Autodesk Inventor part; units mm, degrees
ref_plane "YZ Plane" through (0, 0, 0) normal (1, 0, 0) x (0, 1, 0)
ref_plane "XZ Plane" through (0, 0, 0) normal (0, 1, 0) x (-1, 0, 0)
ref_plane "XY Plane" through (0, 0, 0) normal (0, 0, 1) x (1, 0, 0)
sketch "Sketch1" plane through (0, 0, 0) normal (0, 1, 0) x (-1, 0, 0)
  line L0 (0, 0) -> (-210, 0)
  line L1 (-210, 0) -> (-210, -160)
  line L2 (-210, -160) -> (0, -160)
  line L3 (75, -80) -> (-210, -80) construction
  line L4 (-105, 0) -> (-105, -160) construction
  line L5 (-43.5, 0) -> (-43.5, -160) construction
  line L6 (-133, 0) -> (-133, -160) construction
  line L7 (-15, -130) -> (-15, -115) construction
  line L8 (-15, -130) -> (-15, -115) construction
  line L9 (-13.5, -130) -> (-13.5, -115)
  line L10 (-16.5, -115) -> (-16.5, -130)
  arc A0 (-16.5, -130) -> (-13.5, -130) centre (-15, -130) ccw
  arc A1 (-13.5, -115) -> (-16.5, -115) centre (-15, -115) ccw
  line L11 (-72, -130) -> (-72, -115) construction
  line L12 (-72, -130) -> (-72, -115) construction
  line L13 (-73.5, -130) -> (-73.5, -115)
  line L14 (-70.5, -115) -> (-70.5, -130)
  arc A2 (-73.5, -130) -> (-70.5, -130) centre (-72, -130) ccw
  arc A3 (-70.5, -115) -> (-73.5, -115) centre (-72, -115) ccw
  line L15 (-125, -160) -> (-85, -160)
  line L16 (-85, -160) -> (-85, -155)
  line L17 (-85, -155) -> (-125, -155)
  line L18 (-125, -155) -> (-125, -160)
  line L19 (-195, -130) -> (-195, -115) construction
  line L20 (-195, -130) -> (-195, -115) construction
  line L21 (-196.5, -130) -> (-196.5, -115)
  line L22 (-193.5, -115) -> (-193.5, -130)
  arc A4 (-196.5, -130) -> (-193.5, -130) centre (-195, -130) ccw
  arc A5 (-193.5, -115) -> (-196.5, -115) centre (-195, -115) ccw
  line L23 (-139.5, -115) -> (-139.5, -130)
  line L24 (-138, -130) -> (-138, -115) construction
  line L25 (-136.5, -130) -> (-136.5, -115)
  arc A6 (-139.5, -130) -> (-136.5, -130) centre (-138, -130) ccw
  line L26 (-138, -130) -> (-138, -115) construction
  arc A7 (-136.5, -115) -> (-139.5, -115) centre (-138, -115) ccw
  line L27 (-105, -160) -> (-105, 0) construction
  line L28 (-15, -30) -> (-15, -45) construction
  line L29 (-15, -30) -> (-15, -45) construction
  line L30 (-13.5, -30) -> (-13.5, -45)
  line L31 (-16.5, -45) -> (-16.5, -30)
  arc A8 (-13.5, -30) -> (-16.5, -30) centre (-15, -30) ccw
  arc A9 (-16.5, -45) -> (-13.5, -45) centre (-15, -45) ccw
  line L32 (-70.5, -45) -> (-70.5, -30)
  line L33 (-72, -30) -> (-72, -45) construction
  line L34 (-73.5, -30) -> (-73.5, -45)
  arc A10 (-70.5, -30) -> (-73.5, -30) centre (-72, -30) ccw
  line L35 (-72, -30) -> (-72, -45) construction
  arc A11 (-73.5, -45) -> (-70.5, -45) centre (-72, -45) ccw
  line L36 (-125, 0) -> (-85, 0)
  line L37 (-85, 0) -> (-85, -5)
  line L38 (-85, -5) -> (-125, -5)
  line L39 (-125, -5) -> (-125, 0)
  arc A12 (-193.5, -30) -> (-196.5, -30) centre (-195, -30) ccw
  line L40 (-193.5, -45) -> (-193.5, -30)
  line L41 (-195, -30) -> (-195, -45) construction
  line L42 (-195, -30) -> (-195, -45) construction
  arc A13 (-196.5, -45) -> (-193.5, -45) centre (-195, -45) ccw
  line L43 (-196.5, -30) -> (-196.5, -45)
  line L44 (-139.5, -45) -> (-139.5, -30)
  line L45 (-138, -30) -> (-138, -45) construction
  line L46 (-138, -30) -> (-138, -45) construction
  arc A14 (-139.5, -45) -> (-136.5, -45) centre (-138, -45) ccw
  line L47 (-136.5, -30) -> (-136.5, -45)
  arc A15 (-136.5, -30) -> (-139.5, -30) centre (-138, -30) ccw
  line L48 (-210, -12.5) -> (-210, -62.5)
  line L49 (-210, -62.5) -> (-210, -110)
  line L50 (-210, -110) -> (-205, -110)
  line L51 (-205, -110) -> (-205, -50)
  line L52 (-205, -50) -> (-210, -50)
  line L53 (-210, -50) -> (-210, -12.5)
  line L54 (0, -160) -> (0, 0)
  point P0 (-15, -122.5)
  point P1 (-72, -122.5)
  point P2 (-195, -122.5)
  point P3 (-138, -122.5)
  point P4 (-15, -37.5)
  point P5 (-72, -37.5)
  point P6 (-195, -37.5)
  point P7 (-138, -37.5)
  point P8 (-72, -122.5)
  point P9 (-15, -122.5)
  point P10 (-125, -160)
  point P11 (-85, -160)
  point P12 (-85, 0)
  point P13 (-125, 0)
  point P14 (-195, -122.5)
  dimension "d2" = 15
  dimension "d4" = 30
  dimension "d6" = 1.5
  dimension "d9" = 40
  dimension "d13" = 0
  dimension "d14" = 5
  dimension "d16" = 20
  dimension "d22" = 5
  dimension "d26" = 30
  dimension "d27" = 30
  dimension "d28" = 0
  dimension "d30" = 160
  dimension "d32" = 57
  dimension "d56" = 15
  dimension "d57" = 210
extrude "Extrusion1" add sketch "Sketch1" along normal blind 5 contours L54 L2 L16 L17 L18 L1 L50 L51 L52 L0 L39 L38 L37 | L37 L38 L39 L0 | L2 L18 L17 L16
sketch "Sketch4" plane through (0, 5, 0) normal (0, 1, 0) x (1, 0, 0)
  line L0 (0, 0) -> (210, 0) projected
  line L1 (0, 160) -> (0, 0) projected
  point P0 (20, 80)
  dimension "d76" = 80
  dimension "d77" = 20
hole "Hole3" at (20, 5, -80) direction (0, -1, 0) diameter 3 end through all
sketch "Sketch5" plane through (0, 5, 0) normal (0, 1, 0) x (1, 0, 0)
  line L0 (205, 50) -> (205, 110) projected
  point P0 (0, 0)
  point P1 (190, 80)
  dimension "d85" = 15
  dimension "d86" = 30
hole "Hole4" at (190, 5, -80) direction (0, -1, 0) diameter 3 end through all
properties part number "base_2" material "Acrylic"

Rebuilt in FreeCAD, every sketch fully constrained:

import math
import FreeCAD as App
import Part
import Sketcher
from FreeCAD import Vector
Q = App.Units.Quantity


def add_polygon(sketch, points):
    """Adds a closed chain of lines whose ends are joined by coincident constraints."""
    first, n = sketch.GeometryCount, len(points)
    for a, b in zip(points, points[1:] + points[:1]):
        sketch.addGeometry(Part.LineSegment(App.Vector(*a, 0), App.Vector(*b, 0)), False)
    for i in range(n):
        sketch.addConstraint(Sketcher.Constraint("Coincident", first + i, 2, first + (i + 1) % n, 1))

doc = App.newDocument("Part")
body = doc.addObject("PartDesign::Body", "Body")

sketch1 = body.newObject("Sketcher::SketchObject", "Sketch")
sketch1.AttachmentSupport = (doc.getObject("XZ_Plane"), [""])
sketch1.MapMode = "FlatFace"
add_polygon(sketch1, [(0, -160), (0, 0), (210, 0), (210, -50), (205, -50), (205, -110), (210, -110), (210, -160)])
sketch1.addGeometry(Part.ArcOfCircle(Part.Circle(Vector(195, -130, 0), Vector(0, 0, 1), 1.5), math.radians(180), math.radians(360)), False)
sketch1.addGeometry(Part.LineSegment(Vector(196.5, -130, 0), Vector(196.5, -115, 0)), False)
sketch1.addGeometry(Part.ArcOfCircle(Part.Circle(Vector(195, -115, 0), Vector(0, 0, 1), 1.5), math.radians(0), math.radians(180)), False)
sketch1.addGeometry(Part.LineSegment(Vector(193.5, -115, 0), Vector(193.5, -130, 0)), False)
sketch1.addGeometry(Part.LineSegment(Vector(139.5, -130, 0), Vector(139.5, -115, 0)), False)
sketch1.addGeometry(Part.ArcOfCircle(Part.Circle(Vector(138, -115, 0), Vector(0, 0, 1), 1.5), math.radians(0), math.radians(180)), False)
sketch1.addGeometry(Part.LineSegment(Vector(136.5, -115, 0), Vector(136.5, -130, 0)), False)
sketch1.addGeometry(Part.ArcOfCircle(Part.Circle(Vector(138, -130, 0), Vector(0, 0, 1), 1.5), math.radians(180), math.radians(360)), False)
sketch1.addGeometry(Part.ArcOfCircle(Part.Circle(Vector(72, -130, 0), Vector(0, 0, 1), 1.5), math.radians(180), math.radians(360)), False)
sketch1.addGeometry(Part.LineSegment(Vector(73.5, -130, 0), Vector(73.5, -115, 0)), False)
sketch1.addGeometry(Part.ArcOfCircle(Part.Circle(Vector(72, -115, 0), Vector(0, 0, 1), 1.5), math.radians(0), math.radians(180)), False)
sketch1.addGeometry(Part.LineSegment(Vector(70.5, -115, 0), Vector(70.5, -130, 0)), False)
sketch1.addGeometry(Part.LineSegment(Vector(13.5, -115, 0), Vector(13.5, -130, 0)), False)
sketch1.addGeometry(Part.ArcOfCircle(Part.Circle(Vector(15, -130, 0), Vector(0, 0, 1), 1.5), math.radians(180), math.radians(360)), False)
sketch1.addGeometry(Part.LineSegment(Vector(16.5, -130, 0), Vector(16.5, -115, 0)), False)
sketch1.addGeometry(Part.ArcOfCircle(Part.Circle(Vector(15, -115, 0), Vector(0, 0, 1), 1.5), math.radians(0), math.radians(180)), False)
sketch1.addGeometry(Part.ArcOfCircle(Part.Circle(Vector(195, -30, 0), Vector(0, 0, 1), 1.5), math.radians(0), math.radians(180)), False)
sketch1.addGeometry(Part.LineSegment(Vector(193.5, -30, 0), Vector(193.5, -45, 0)), False)
sketch1.addGeometry(Part.ArcOfCircle(Part.Circle(Vector(195, -45, 0), Vector(0, 0, 1), 1.5), math.radians(180), math.radians(360)), False)
sketch1.addGeometry(Part.LineSegment(Vector(196.5, -45, 0), Vector(196.5, -30, 0)), False)
sketch1.addGeometry(Part.ArcOfCircle(Part.Circle(Vector(138, -45, 0), Vector(0, 0, 1), 1.5), math.radians(180), math.radians(360)), False)
sketch1.addGeometry(Part.LineSegment(Vector(139.5, -45, 0), Vector(139.5, -30, 0)), False)
sketch1.addGeometry(Part.ArcOfCircle(Part.Circle(Vector(138, -30, 0), Vector(0, 0, 1), 1.5), math.radians(0), math.radians(180)), False)
sketch1.addGeometry(Part.LineSegment(Vector(136.5, -30, 0), Vector(136.5, -45, 0)), False)
sketch1.addGeometry(Part.LineSegment(Vector(70.5, -30, 0), Vector(70.5, -45, 0)), False)
sketch1.addGeometry(Part.ArcOfCircle(Part.Circle(Vector(72, -45, 0), Vector(0, 0, 1), 1.5), math.radians(180), math.radians(360)), False)
sketch1.addGeometry(Part.LineSegment(Vector(73.5, -45, 0), Vector(73.5, -30, 0)), False)
sketch1.addGeometry(Part.ArcOfCircle(Part.Circle(Vector(72, -30, 0), Vector(0, 0, 1), 1.5), math.radians(0), math.radians(180)), False)
sketch1.addGeometry(Part.ArcOfCircle(Part.Circle(Vector(15, -30, 0), Vector(0, 0, 1), 1.5), math.radians(0), math.radians(180)), False)
sketch1.addGeometry(Part.LineSegment(Vector(13.5, -30, 0), Vector(13.5, -45, 0)), False)
sketch1.addGeometry(Part.ArcOfCircle(Part.Circle(Vector(15, -45, 0), Vector(0, 0, 1), 1.5), math.radians(180), math.radians(360)), False)
sketch1.addGeometry(Part.LineSegment(Vector(16.5, -45, 0), Vector(16.5, -30, 0)), False)
sketch1.addConstraint([
    Sketcher.Constraint("Tangent", 8, 2, 9, 1),
    Sketcher.Constraint("Tangent", 9, 2, 10, 1),
    Sketcher.Constraint("Tangent", 10, 2, 11, 1),
    Sketcher.Constraint("Tangent", 11, 2, 8, 1),
    Sketcher.Constraint("Tangent", 12, 2, 13, 1),
    Sketcher.Constraint("Tangent", 13, 2, 14, 1),
    Sketcher.Constraint("Tangent", 14, 2, 15, 1),
    Sketcher.Constraint("Tangent", 15, 2, 12, 1),
    Sketcher.Constraint("Tangent", 16, 2, 17, 1),
    Sketcher.Constraint("Tangent", 17, 2, 18, 1),
    Sketcher.Constraint("Tangent", 18, 2, 19, 1),
    Sketcher.Constraint("Tangent", 19, 2, 16, 1),
    Sketcher.Constraint("Tangent", 20, 2, 21, 1),
    Sketcher.Constraint("Tangent", 21, 2, 22, 1),
    Sketcher.Constraint("Tangent", 22, 2, 23, 1),
    Sketcher.Constraint("Tangent", 23, 2, 20, 1),
    Sketcher.Constraint("Tangent", 24, 2, 25, 1),
    Sketcher.Constraint("Tangent", 25, 2, 26, 1),
    Sketcher.Constraint("Tangent", 26, 2, 27, 1),
    Sketcher.Constraint("Tangent", 27, 2, 24, 1),
    Sketcher.Constraint("Tangent", 28, 2, 29, 1),
    Sketcher.Constraint("Tangent", 29, 2, 30, 1),
    Sketcher.Constraint("Tangent", 30, 2, 31, 1),
    Sketcher.Constraint("Tangent", 31, 2, 28, 1),
    Sketcher.Constraint("Tangent", 32, 2, 33, 1),
    Sketcher.Constraint("Tangent", 33, 2, 34, 1),
    Sketcher.Constraint("Tangent", 34, 2, 35, 1),
    Sketcher.Constraint("Tangent", 35, 2, 32, 1),
    Sketcher.Constraint("Tangent", 36, 2, 37, 1),
    Sketcher.Constraint("Tangent", 37, 2, 38, 1),
    Sketcher.Constraint("Tangent", 38, 2, 39, 1),
    Sketcher.Constraint("Tangent", 39, 2, 36, 1),
    Sketcher.Constraint("Vertical", 0),
    Sketcher.Constraint("Horizontal", 1),
    Sketcher.Constraint("Vertical", 2),
    Sketcher.Constraint("Horizontal", 3),
    Sketcher.Constraint("Vertical", 4),
    Sketcher.Constraint("Horizontal", 5),
    Sketcher.Constraint("Vertical", 6),
    Sketcher.Constraint("Horizontal", 7),
    Sketcher.Constraint("Vertical", 9),
    Sketcher.Constraint("Vertical", 11),
    Sketcher.Constraint("Vertical", 12),
    Sketcher.Constraint("Vertical", 14),
    Sketcher.Constraint("Vertical", 17),
    Sketcher.Constraint("Vertical", 19),
    Sketcher.Constraint("Vertical", 20),
    Sketcher.Constraint("Vertical", 22),
    Sketcher.Constraint("Vertical", 25),
    Sketcher.Constraint("Vertical", 27),
    Sketcher.Constraint("Vertical", 29),
    Sketcher.Constraint("Vertical", 31),
    Sketcher.Constraint("Vertical", 32),
    Sketcher.Constraint("Vertical", 34),
    Sketcher.Constraint("Vertical", 37),
    Sketcher.Constraint("Vertical", 39),
    Sketcher.Constraint("Coincident", 0, 2, -1, 1),
    Sketcher.Constraint("Equal", 10, 13),
    Sketcher.Constraint("Equal", 15, 16),
    Sketcher.Constraint("Equal", 18, 21),
    Sketcher.Constraint("Equal", 23, 24),
    Sketcher.Constraint("Equal", 26, 28),
    Sketcher.Constraint("Equal", 30, 33),
    Sketcher.Constraint("Equal", 35, 36),
    Sketcher.Constraint("Horizontal", 10, 3, 13, 3),
    Sketcher.Constraint("Horizontal", 8, 3, 15, 3),
    Sketcher.Constraint("Horizontal", 15, 3, 16, 3),
    Sketcher.Constraint("Horizontal", 13, 3, 18, 3),
    Sketcher.Constraint("Horizontal", 16, 3, 21, 3),
    Sketcher.Constraint("Horizontal", 18, 3, 23, 3),
    Sketcher.Constraint("Horizontal", 26, 3, 28, 3),
    Sketcher.Constraint("Horizontal", 24, 3, 30, 3),
    Sketcher.Constraint("Horizontal", 28, 3, 33, 3),
    Sketcher.Constraint("Horizontal", 30, 3, 35, 3),
    Sketcher.Constraint("Horizontal", 35, 3, 36, 3),
    Sketcher.Constraint("Horizontal", 33, 3, 38, 3),
    Sketcher.Constraint("Vertical", 10, 3, 24, 3),
    Sketcher.Constraint("Vertical", 15, 3, 28, 3),
    Sketcher.Constraint("Vertical", 18, 3, 33, 3),
    Sketcher.Constraint("Vertical", 23, 3, 36, 3),
    Sketcher.Constraint("Vertical", 2, 2, 5, 2),
    Sketcher.Constraint("Equal", 2, 6),
    Sketcher.Constraint("Equal", 22, 25),
    Sketcher.Constraint("Radius", 8, Q("1.5 mm")),
    Sketcher.Constraint("DistanceX", 1, 1, 1, 2, Q("210 mm")),
    Sketcher.Constraint("DistanceX", 3, 2, 3, 1, Q("5 mm")),
    Sketcher.Constraint("DistanceY", 0, 1, 0, 2, Q("160 mm")),
    Sketcher.Constraint("DistanceY", 9, 1, 9, 2, Q("15 mm")),
    Sketcher.Constraint("DistanceX", -1, 1, 21, 3, Q("15 mm")),
    Sketcher.Constraint("DistanceY", 24, 3, -1, 1, Q("30 mm")),
    Sketcher.Constraint("DistanceX", 13, 3, 10, 3, Q("57 mm")),
    Sketcher.Constraint("DistanceX", 21, 3, 16, 3, Q("57 mm")),
    Sketcher.Constraint("DistanceX", 24, 3, 1, 2, Q("15 mm")),
    Sketcher.Constraint("DistanceY", 2, 2, 26, 3, Q("5 mm")),
    Sketcher.Constraint("DistanceY", 10, 3, 4, 2, Q("5 mm")),
])
pad1 = body.newObject("PartDesign::Pad", "Pad")
pad1.Profile = sketch1
pad1.Length = 5
pad1.Reversed = True

sketch2 = body.newObject("Sketcher::SketchObject", "Sketch001")
sketch2.AttachmentSupport = (doc.getObject("XZ_Plane"), [""])
sketch2.MapMode = "FlatFace"
sketch2.AttachmentOffset = App.Placement(Vector(0, 0, -5), App.Rotation())
sketch2.addGeometry(Part.Circle(Vector(20, -80, 0), Vector(0, 0, 1), 1.5), False)
sketch2.addConstraint([
    Sketcher.Constraint("Diameter", 0, Q("3 mm")),
    Sketcher.Constraint("DistanceX", -1, 1, 0, 3, Q("20 mm")),
    Sketcher.Constraint("DistanceY", 0, 3, -1, 1, Q("80 mm")),
])
doc.recompute()
hole = body.newObject("PartDesign::Hole", "Hole")
hole.Profile = sketch2
hole.ThreadType = "None"
hole.Diameter = 3
hole.DepthType = "ThroughAll"
hole.Reversed = True

sketch3 = body.newObject("Sketcher::SketchObject", "Sketch002")
sketch3.AttachmentSupport = (doc.getObject("XZ_Plane"), [""])
sketch3.MapMode = "FlatFace"
sketch3.AttachmentOffset = App.Placement(Vector(0, 0, -5), App.Rotation())
sketch3.addGeometry(Part.Circle(Vector(190, -80, 0), Vector(0, 0, 1), 1.5), False)
sketch3.addConstraint([
    Sketcher.Constraint("Diameter", 0, Q("3 mm")),
    Sketcher.Constraint("DistanceX", -1, 1, 0, 3, Q("190 mm")),
    Sketcher.Constraint("DistanceY", 0, 3, -1, 1, Q("80 mm")),
])
doc.recompute()
hole2 = body.newObject("PartDesign::Hole", "Hole001")
hole2.Profile = sketch3
hole2.ThreadType = "None"
hole2.Diameter = 3
hole2.DepthType = "ThroughAll"
hole2.Reversed = True

doc.recompute()
